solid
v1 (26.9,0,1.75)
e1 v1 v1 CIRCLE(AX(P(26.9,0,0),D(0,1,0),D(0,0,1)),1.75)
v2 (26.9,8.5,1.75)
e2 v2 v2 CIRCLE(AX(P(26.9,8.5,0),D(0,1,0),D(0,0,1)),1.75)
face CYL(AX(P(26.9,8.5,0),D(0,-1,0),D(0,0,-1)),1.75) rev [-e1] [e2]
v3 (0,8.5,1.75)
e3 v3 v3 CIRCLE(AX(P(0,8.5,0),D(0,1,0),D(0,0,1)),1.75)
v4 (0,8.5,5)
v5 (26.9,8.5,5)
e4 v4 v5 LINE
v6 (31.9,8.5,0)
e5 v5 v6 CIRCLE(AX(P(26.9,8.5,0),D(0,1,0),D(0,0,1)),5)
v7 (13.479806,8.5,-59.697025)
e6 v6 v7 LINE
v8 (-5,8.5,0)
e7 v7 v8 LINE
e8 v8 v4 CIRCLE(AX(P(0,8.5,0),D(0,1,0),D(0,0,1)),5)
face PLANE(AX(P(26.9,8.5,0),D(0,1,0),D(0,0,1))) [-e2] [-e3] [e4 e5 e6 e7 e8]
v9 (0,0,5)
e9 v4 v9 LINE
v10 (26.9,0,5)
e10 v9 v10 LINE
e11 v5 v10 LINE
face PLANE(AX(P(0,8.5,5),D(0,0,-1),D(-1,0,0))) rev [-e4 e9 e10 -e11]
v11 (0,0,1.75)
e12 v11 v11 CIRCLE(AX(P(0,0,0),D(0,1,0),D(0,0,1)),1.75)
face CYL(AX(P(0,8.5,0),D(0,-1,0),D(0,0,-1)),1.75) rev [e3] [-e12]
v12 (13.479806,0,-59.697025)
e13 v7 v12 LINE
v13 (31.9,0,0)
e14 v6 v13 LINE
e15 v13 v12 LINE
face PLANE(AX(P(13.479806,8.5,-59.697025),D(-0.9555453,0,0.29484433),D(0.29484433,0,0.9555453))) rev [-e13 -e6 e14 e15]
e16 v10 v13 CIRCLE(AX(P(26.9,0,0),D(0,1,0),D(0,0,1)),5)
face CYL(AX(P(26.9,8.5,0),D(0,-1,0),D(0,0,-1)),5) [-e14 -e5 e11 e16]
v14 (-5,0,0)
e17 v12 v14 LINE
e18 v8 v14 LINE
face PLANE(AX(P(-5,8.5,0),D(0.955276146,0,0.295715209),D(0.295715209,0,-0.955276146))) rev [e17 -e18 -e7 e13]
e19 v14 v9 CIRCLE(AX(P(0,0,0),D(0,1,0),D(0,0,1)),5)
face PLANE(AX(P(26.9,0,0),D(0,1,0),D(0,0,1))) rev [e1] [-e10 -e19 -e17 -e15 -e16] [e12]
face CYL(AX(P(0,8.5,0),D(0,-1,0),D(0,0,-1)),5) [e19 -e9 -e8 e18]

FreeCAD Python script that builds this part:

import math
import FreeCAD as App
import Part
import Sketcher
from FreeCAD import Vector

doc = App.newDocument("Part")
body = doc.addObject("PartDesign::Body", "Body")

# Sketch on XZ plane
sketch1 = body.newObject("Sketcher::SketchObject", "Sketch")
sketch1.AttachmentSupport = (doc.getObject("XZ_Plane"), [""])
sketch1.MapMode = "FlatFace"
sketch1.addGeometry(Part.LineSegment(Vector(13.5, -59.7, 0), Vector(-5, 0, 0)), False)
sketch1.addGeometry(Part.ArcOfCircle(Part.Circle(Vector(0, 0, 0), Vector(0, 0, 1), 5), math.radians(90), math.radians(180)), False)
sketch1.addGeometry(Part.LineSegment(Vector(0, 5, 0), Vector(26.9, 5, 0)), False)
sketch1.addGeometry(Part.ArcOfCircle(Part.Circle(Vector(26.9, 0, 0), Vector(0, 0, 1), 5), math.radians(0), math.radians(90)), False)
sketch1.addGeometry(Part.LineSegment(Vector(31.9, 0, 0), Vector(13.5, -59.7, 0)), False)
sketch1.addGeometry(Part.Circle(Vector(26.9, 0, 0), Vector(0, 0, 1), 1.8), False)
sketch1.addGeometry(Part.Circle(Vector(0, 0, 0), Vector(0, 0, 1), 1.8), False)
sketch1.addConstraint(Sketcher.Constraint("Coincident", 0, 2, 1, 2))
sketch1.addConstraint(Sketcher.Constraint("Tangent", 1, 1, 2, 1))
sketch1.addConstraint(Sketcher.Constraint("Tangent", 2, 2, 3, 2))
sketch1.addConstraint(Sketcher.Constraint("Coincident", 3, 1, 4, 1))
sketch1.addConstraint(Sketcher.Constraint("Coincident", 4, 2, 0, 1))
sketch1.addConstraint(Sketcher.Constraint("Horizontal", 2))
sketch1.addConstraint(Sketcher.Constraint("Coincident", 1, 3, -1, 1))
sketch1.addConstraint(Sketcher.Constraint("Coincident", 6, 3, -1, 1))
sketch1.addConstraint(Sketcher.Constraint("Coincident", 5, 3, 3, 3))
sketch1.addConstraint(Sketcher.Constraint("Equal", 1, 3))
sketch1.addConstraint(Sketcher.Constraint("Equal", 5, 6))
sketch1.addConstraint(Sketcher.Constraint("PointOnObject", 0, 2, -1))
sketch1.addConstraint(Sketcher.Constraint("PointOnObject", 3, 1, -1))
sketch1.addConstraint(Sketcher.Constraint("Radius", 1, 5.0))
sketch1.addConstraint(Sketcher.Constraint("Diameter", 5, 3.5))
sketch1.addConstraint(Sketcher.Constraint("DistanceX", 2, 1, 2, 2, 26.9))
sketch1.addConstraint(Sketcher.Constraint("Distance", 4, 62.474302))
sketch1.addConstraint(Sketcher.Constraint("Distance", 0, 62.491904))
pad1 = body.newObject("PartDesign::Pad", "Pad")
pad1.Profile = sketch1
pad1.Length = 8.5
pad1.Reversed = True

doc.recompute()
